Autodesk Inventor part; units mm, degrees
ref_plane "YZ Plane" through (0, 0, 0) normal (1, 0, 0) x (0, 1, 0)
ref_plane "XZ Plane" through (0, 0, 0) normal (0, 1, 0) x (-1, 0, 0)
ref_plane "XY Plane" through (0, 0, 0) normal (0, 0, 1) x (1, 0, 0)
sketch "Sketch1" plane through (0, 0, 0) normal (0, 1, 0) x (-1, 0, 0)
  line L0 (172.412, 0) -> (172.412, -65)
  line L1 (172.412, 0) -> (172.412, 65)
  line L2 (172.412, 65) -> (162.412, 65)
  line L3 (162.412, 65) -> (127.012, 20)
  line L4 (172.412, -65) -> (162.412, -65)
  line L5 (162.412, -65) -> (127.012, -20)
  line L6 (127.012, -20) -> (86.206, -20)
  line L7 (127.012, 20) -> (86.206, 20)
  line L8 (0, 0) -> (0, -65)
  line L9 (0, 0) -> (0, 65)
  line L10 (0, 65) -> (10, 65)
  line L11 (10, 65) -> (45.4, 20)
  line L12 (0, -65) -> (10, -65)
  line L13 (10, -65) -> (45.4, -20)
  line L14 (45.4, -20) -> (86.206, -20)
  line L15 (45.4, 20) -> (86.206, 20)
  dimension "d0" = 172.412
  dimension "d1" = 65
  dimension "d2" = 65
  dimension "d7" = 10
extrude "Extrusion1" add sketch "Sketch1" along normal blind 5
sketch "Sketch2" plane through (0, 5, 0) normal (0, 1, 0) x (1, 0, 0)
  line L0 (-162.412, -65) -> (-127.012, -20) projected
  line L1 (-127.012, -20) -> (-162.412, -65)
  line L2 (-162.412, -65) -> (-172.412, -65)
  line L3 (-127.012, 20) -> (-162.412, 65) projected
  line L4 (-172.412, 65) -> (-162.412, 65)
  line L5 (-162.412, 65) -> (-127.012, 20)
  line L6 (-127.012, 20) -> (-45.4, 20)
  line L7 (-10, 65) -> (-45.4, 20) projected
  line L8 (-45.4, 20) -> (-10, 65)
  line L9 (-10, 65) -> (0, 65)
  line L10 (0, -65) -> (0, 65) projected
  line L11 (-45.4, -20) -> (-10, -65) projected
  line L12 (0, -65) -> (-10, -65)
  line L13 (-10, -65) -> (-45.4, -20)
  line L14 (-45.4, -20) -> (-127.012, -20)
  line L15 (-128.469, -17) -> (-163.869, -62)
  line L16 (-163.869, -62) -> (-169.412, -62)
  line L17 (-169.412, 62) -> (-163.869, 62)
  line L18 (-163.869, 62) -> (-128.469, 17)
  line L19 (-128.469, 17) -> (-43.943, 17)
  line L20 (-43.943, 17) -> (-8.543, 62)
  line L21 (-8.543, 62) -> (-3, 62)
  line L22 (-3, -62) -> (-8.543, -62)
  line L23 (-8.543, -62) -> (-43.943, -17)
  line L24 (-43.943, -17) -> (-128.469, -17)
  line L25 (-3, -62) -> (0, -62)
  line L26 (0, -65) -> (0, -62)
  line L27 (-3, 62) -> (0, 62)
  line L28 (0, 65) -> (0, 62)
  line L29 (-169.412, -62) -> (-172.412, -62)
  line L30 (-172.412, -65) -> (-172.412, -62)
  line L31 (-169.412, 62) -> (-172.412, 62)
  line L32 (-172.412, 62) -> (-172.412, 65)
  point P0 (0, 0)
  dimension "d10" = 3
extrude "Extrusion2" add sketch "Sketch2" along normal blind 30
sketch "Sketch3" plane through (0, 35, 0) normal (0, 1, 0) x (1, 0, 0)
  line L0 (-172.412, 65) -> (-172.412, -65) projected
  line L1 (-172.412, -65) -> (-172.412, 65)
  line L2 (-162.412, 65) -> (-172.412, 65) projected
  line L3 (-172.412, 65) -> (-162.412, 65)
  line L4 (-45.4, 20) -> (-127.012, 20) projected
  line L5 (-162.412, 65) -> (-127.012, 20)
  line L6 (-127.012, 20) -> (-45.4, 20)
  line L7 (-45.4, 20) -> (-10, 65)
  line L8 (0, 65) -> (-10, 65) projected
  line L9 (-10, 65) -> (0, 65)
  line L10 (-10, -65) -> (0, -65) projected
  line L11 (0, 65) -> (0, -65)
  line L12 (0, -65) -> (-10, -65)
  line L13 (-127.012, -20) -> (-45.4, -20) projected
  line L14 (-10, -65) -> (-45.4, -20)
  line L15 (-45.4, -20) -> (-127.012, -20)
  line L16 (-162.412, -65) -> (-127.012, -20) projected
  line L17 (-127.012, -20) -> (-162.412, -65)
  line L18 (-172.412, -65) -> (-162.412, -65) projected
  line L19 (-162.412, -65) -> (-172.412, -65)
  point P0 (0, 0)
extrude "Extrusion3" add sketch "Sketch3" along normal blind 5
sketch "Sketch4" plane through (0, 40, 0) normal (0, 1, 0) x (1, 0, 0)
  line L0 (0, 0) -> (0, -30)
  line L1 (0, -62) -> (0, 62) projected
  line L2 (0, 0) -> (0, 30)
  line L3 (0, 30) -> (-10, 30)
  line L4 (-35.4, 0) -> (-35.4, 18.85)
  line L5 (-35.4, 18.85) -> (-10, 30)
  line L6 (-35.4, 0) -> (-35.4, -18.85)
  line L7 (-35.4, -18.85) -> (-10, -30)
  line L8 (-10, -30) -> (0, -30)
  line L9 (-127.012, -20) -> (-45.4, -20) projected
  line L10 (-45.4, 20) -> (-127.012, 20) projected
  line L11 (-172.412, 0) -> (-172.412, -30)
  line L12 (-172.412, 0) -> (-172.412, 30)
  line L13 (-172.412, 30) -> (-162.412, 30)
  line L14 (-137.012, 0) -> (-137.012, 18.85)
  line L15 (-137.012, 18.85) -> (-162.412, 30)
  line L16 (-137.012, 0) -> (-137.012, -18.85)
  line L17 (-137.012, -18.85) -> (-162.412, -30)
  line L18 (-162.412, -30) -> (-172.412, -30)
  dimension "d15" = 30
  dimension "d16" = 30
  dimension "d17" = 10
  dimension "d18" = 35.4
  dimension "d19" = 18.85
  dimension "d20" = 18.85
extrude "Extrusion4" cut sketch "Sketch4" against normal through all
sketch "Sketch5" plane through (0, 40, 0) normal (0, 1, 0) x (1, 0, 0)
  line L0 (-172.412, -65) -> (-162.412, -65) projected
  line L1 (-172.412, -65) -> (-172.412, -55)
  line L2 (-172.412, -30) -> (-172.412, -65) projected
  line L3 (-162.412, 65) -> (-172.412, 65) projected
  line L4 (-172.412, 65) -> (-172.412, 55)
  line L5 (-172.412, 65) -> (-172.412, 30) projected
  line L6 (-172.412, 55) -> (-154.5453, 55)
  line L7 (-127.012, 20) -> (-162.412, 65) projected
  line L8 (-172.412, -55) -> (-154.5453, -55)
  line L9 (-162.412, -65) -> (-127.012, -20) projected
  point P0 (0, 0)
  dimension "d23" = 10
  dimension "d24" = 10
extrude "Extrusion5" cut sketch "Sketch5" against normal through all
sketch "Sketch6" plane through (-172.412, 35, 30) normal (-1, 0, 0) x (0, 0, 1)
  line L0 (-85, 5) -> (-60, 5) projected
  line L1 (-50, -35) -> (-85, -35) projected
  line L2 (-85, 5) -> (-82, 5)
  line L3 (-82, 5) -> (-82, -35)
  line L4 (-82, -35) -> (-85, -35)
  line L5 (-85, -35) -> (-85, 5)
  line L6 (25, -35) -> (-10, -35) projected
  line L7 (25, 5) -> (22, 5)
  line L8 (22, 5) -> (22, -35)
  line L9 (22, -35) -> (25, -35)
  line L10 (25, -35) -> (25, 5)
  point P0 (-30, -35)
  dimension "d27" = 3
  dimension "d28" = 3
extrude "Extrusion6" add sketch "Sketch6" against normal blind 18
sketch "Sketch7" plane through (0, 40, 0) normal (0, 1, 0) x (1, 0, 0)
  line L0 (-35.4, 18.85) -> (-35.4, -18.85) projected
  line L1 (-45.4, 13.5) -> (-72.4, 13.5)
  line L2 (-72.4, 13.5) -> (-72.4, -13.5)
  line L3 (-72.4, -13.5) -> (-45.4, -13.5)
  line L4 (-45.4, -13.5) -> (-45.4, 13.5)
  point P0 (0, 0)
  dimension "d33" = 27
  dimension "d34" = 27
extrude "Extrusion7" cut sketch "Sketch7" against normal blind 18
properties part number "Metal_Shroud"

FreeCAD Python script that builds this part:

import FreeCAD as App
import Part
import Sketcher

V = App.Vector
Q = App.Units.Quantity

doc = App.newDocument("Part")
body = doc.addObject("PartDesign::Body", "Body")

# Sketch on XZ plane
sketch1 = body.newObject("Sketcher::SketchObject", "Sketch")
sketch1.AttachmentSupport = (doc.getObject("XZ_Plane"), [""])
sketch1.MapMode = "FlatFace"
sketch1.addGeometry([
    Part.LineSegment(V(-172, -65, 0), V(-172, 65, 0)),  # 0
    Part.LineSegment(V(-172, 65, 0), V(-162, 65, 0)),  # 1
    Part.LineSegment(V(-162, 65, 0), V(-127, 20, 0)),  # 2
    Part.LineSegment(V(-127, 20, 0), V(-45, 20, 0)),  # 3
    Part.LineSegment(V(-45, 20, 0), V(-10, 65, 0)),  # 4
    Part.LineSegment(V(-10, 65, 0), V(0, 65, 0)),  # 5
    Part.LineSegment(V(0, 65, 0), V(0, -65, 0)),  # 6
    Part.LineSegment(V(0, -65, 0), V(-10, -65, 0)),  # 7
    Part.LineSegment(V(-10, -65, 0), V(-45, -20, 0)),  # 8
    Part.LineSegment(V(-45, -20, 0), V(-127, -20, 0)),  # 9
    Part.LineSegment(V(-127, -20, 0), V(-162, -65, 0)),  # 10
    Part.LineSegment(V(-162, -65, 0), V(-172, -65, 0)),  # 11
], False)
sketch1.addConstraint([
    Sketcher.Constraint("Coincident", 0, 2, 1, 1),
    Sketcher.Constraint("Coincident", 1, 2, 2, 1),
    Sketcher.Constraint("Coincident", 2, 2, 3, 1),
    Sketcher.Constraint("Coincident", 3, 2, 4, 1),
    Sketcher.Constraint("Coincident", 4, 2, 5, 1),
    Sketcher.Constraint("Coincident", 5, 2, 6, 1),
    Sketcher.Constraint("Coincident", 6, 2, 7, 1),
    Sketcher.Constraint("Coincident", 7, 2, 8, 1),
    Sketcher.Constraint("Coincident", 8, 2, 9, 1),
    Sketcher.Constraint("Coincident", 9, 2, 10, 1),
    Sketcher.Constraint("Coincident", 10, 2, 11, 1),
    Sketcher.Constraint("Coincident", 11, 2, 0, 1),
    Sketcher.Constraint("Vertical", 0),
    Sketcher.Constraint("Horizontal", 1),
    Sketcher.Constraint("Horizontal", 3),
    Sketcher.Constraint("Horizontal", 5),
    Sketcher.Constraint("Vertical", 6),
    Sketcher.Constraint("Horizontal", 7),
    Sketcher.Constraint("Horizontal", 9),
    Sketcher.Constraint("Horizontal", 11),
    Sketcher.Constraint("Symmetric", 5, 2, 6, 2, -1, 1),
    Sketcher.Constraint("Symmetric", 3, 2, 8, 2, -1),
    Sketcher.Constraint("Symmetric", 1, 2, 10, 2, -1),
    Sketcher.Constraint("Parallel", 2, 8),
    Sketcher.Constraint("Parallel", 4, 10),
    Sketcher.Constraint("Horizontal", 1, 2, 4, 2),
    Sketcher.Constraint("Vertical", 4, 2, 7, 2),
    Sketcher.Constraint("Equal", 1, 5),
    Sketcher.Constraint("DistanceX", 1, 1, 1, 2, 10.0),
    Sketcher.Constraint("DistanceY", -1, 1, 0, 2, 65.0),
    Sketcher.Constraint("DistanceX", 0, 2, -1, 1, 172.412),
    Sketcher.Constraint("DistanceY", -1, 1, 2, 2, 20.0),
    Sketcher.Constraint("DistanceX", 3, 2, -1, 1, 45.4),
])
pad1 = body.newObject("PartDesign::Pad", "Pad")
pad1.Profile = sketch1
pad1.Length = 5
pad1.Reversed = True

# Sketch on XZ plane
sketch2 = body.newObject("Sketcher::SketchObject", "Sketch001")
sketch2.AttachmentSupport = (doc.getObject("XZ_Plane"), [""])
sketch2.MapMode = "FlatFace"
sketch2.AttachmentOffset = App.Placement(V(0, 0, -5), App.Rotation())
sketch2.addGeometry([
    Part.LineSegment(V(-172.4, 65, 0), V(-162.4, 65, 0)),  # 0
    Part.LineSegment(V(-162.4, 65, 0), V(-127, 20, 0)),  # 1
    Part.LineSegment(V(-127, 20, 0), V(-45.4, 20, 0)),  # 2
    Part.LineSegment(V(-45.4, 20, 0), V(-10, 65, 0)),  # 3
    Part.LineSegment(V(-10, 65, 0), V(0, 65, 0)),  # 4
    Part.LineSegment(V(0, 65, 0), V(0, 62, 0)),  # 5
    Part.LineSegment(V(0, 62, 0), V(-8.5, 62, 0)),  # 6
    Part.LineSegment(V(-8.5, 62, 0), V(-43.9, 17, 0)),  # 7
    Part.LineSegment(V(-43.9, 17, 0), V(-128.5, 17, 0)),  # 8
    Part.LineSegment(V(-128.5, 17, 0), V(-163.9, 62, 0)),  # 9
    Part.LineSegment(V(-163.9, 62, 0), V(-172.4, 62, 0)),  # 10
    Part.LineSegment(V(-172.4, 62, 0), V(-172.4, 65, 0)),  # 11
    Part.LineSegment(V(-8.5, -62, 0), V(0, -62, 0)),  # 12
    Part.LineSegment(V(0, -62, 0), V(0, -65, 0)),  # 13
    Part.LineSegment(V(0, -65, 0), V(-10, -65, 0)),  # 14
    Part.LineSegment(V(-10, -65, 0), V(-45.4, -20, 0)),  # 15
    Part.LineSegment(V(-45.4, -20, 0), V(-127, -20, 0)),  # 16
    Part.LineSegment(V(-127, -20, 0), V(-162.4, -65, 0)),  # 17
    Part.LineSegment(V(-162.4, -65, 0), V(-172.4, -65, 0)),  # 18
    Part.LineSegment(V(-172.4, -65, 0), V(-172.4, -62, 0)),  # 19
    Part.LineSegment(V(-172.4, -62, 0), V(-163.9, -62, 0)),  # 20
    Part.LineSegment(V(-163.9, -62, 0), V(-128.5, -17, 0)),  # 21
    Part.LineSegment(V(-128.5, -17, 0), V(-43.9, -17, 0)),  # 22
    Part.LineSegment(V(-43.9, -17, 0), V(-8.5, -62, 0)),  # 23
], False)
sketch2.addConstraint([
    Sketcher.Constraint("Coincident", 0, 2, 1, 1),
    Sketcher.Constraint("Coincident", 1, 2, 2, 1),
    Sketcher.Constraint("Coincident", 2, 2, 3, 1),
    Sketcher.Constraint("Coincident", 3, 2, 4, 1),
    Sketcher.Constraint("Coincident", 4, 2, 5, 1),
    Sketcher.Constraint("Coincident", 5, 2, 6, 1),
    Sketcher.Constraint("Coincident", 6, 2, 7, 1),
    Sketcher.Constraint("Coincident", 7, 2, 8, 1),
    Sketcher.Constraint("Coincident", 8, 2, 9, 1),
    Sketcher.Constraint("Coincident", 9, 2, 10, 1),
    Sketcher.Constraint("Coincident", 10, 2, 11, 1),
    Sketcher.Constraint("Coincident", 11, 2, 0, 1),
    Sketcher.Constraint("Coincident", 12, 2, 13, 1),
    Sketcher.Constraint("Coincident", 13, 2, 14, 1),
    Sketcher.Constraint("Coincident", 14, 2, 15, 1),
    Sketcher.Constraint("Coincident", 15, 2, 16, 1),
    Sketcher.Constraint("Coincident", 16, 2, 17, 1),
    Sketcher.Constraint("Coincident", 17, 2, 18, 1),
    Sketcher.Constraint("Coincident", 18, 2, 19, 1),
    Sketcher.Constraint("Coincident", 19, 2, 20, 1),
    Sketcher.Constraint("Coincident", 20, 2, 21, 1),
    Sketcher.Constraint("Coincident", 21, 2, 22, 1),
    Sketcher.Constraint("Coincident", 22, 2, 23, 1),
    Sketcher.Constraint("Coincident", 23, 2, 12, 1),
    Sketcher.Constraint("Horizontal", 0),
    Sketcher.Constraint("Horizontal", 2),
    Sketcher.Constraint("Horizontal", 4),
    Sketcher.Constraint("Vertical", 5),
    Sketcher.Constraint("Horizontal", 6),
    Sketcher.Constraint("Horizontal", 8),
    Sketcher.Constraint("Horizontal", 10),
    Sketcher.Constraint("Vertical", 11),
    Sketcher.Constraint("Horizontal", 12),
    Sketcher.Constraint("Vertical", 13),
    Sketcher.Constraint("Horizontal", 14),
    Sketcher.Constraint("Horizontal", 16),
    Sketcher.Constraint("Horizontal", 18),
    Sketcher.Constraint("Vertical", 19),
    Sketcher.Constraint("Horizontal", 20),
    Sketcher.Constraint("Horizontal", 22),
    Sketcher.Constraint("Symmetric", 5, 2, 12, 2, -1, 1),
    Sketcher.Constraint("Symmetric", 4, 2, 13, 2, -1),
    Sketcher.Constraint("Symmetric", 2, 2, 15, 2, -1),
    Sketcher.Constraint("Symmetric", 0, 2, 17, 2, -1),
    Sketcher.Constraint("Symmetric", 10, 2, 19, 2, -1),
    Sketcher.Constraint("Symmetric", 8, 2, 21, 2, -1),
    Sketcher.Constraint("Parallel", 3, 7),
    Sketcher.Constraint("Parallel", 1, 9),
    Sketcher.Constraint("Parallel", 9, 15),
    Sketcher.Constraint("Parallel", 7, 17),
    Sketcher.Constraint("Parallel", 17, 21),
    Sketcher.Constraint("Parallel", 15, 23),
    Sketcher.Constraint("Horizontal", 0, 2, 3, 2),
    Sketcher.Constraint("Horizontal", 6, 2, 9, 2),
    Sketcher.Constraint("Vertical", 3, 2, 14, 2),
    Sketcher.Constraint("Vertical", 7, 2, 22, 2),
    Sketcher.Constraint("Equal", 0, 4),
    Sketcher.Constraint("Equal", 6, 10),
    Sketcher.Constraint("Equal", 3, 7),
    Sketcher.Constraint("DistanceY", 5, 2, 5, 1, 3.0),
    Sketcher.Constraint("DistanceX", 0, 1, 0, 2, 10.0),
    Sketcher.Constraint("DistanceY", -1, 1, 0, 2, 65.0),
    Sketcher.Constraint("DistanceY", -1, 1, 1, 2, 20.0),
    Sketcher.Constraint("DistanceX", 2, 2, -1, 1, 45.4),
    Sketcher.Constraint("DistanceX", 2, 1, 2, 2, 81.612),
    Sketcher.Constraint("DistanceX", 6, 2, 6, 1, 8.543),
])
pad2 = body.newObject("PartDesign::Pad", "Pad001")
pad2.Profile = sketch2
pad2.Length = 30
pad2.Reversed = True

# Sketch on XZ plane
sketch3 = body.newObject("Sketcher::SketchObject", "Sketch002")
sketch3.AttachmentSupport = (doc.getObject("XZ_Plane"), [""])
sketch3.MapMode = "FlatFace"
sketch3.AttachmentOffset = App.Placement(V(0, 0, -35), App.Rotation())
sketch3.addGeometry([
    Part.LineSegment(V(-162, -65, 0), V(-172, -65, 0)),  # 0
    Part.LineSegment(V(-172, -65, 0), V(-172, 65, 0)),  # 1
    Part.LineSegment(V(-172, 65, 0), V(-162, 65, 0)),  # 2
    Part.LineSegment(V(-162, 65, 0), V(-127, 20, 0)),  # 3
    Part.LineSegment(V(-127, 20, 0), V(-45, 20, 0)),  # 4
    Part.LineSegment(V(-45, 20, 0), V(-10, 65, 0)),  # 5
    Part.LineSegment(V(-10, 65, 0), V(0, 65, 0)),  # 6
    Part.LineSegment(V(0, 65, 0), V(0, -65, 0)),  # 7
    Part.LineSegment(V(0, -65, 0), V(-10, -65, 0)),  # 8
    Part.LineSegment(V(-10, -65, 0), V(-45, -20, 0)),  # 9
    Part.LineSegment(V(-45, -20, 0), V(-127, -20, 0)),  # 10
    Part.LineSegment(V(-127, -20, 0), V(-162, -65, 0)),  # 11
], False)
sketch3.addConstraint([
    Sketcher.Constraint("Coincident", 0, 2, 1, 1),
    Sketcher.Constraint("Coincident", 1, 2, 2, 1),
    Sketcher.Constraint("Coincident", 2, 2, 3, 1),
    Sketcher.Constraint("Coincident", 3, 2, 4, 1),
    Sketcher.Constraint("Coincident", 4, 2, 5, 1),
    Sketcher.Constraint("Coincident", 5, 2, 6, 1),
    Sketcher.Constraint("Coincident", 6, 2, 7, 1),
    Sketcher.Constraint("Coincident", 7, 2, 8, 1),
    Sketcher.Constraint("Coincident", 8, 2, 9, 1),
    Sketcher.Constraint("Coincident", 9, 2, 10, 1),
    Sketcher.Constraint("Coincident", 10, 2, 11, 1),
    Sketcher.Constraint("Coincident", 11, 2, 0, 1),
    Sketcher.Constraint("Horizontal", 0),
    Sketcher.Constraint("Vertical", 1),
    Sketcher.Constraint("Horizontal", 2),
    Sketcher.Constraint("Horizontal", 4),
    Sketcher.Constraint("Horizontal", 6),
    Sketcher.Constraint("Vertical", 7),
    Sketcher.Constraint("Horizontal", 8),
    Sketcher.Constraint("Horizontal", 10),
    Sketcher.Constraint("Symmetric", 6, 2, 7, 2, -1, 1),
    Sketcher.Constraint("Symmetric", 4, 2, 9, 2, -1),
    Sketcher.Constraint("Symmetric", 2, 2, 11, 2, -1),
    Sketcher.Constraint("Parallel", 3, 9),
    Sketcher.Constraint("Parallel", 5, 11),
    Sketcher.Constraint("Horizontal", 2, 2, 5, 2),
    Sketcher.Constraint("Vertical", 5, 2, 8, 2),
    Sketcher.Constraint("Equal", 2, 6),
    Sketcher.Constraint("DistanceX", 0, 2, 0, 1, 10.0),
    Sketcher.Constraint("DistanceY", 1, 1, 1, 2, 130.0),
    Sketcher.Constraint("DistanceY", -1, 1, 3, 2, 20.0),
    Sketcher.Constraint("DistanceX", 4, 2, -1, 1, 45.4),
    Sketcher.Constraint("DistanceX", 4, 1, 4, 2, 81.612),
])
pad3 = body.newObject("PartDesign::Pad", "Pad002")
pad3.Profile = sketch3
pad3.Length = 5
pad3.Reversed = True

# Sketch on XZ plane
sketch4 = body.newObject("Sketcher::SketchObject", "Sketch003")
sketch4.AttachmentSupport = (doc.getObject("XZ_Plane"), [""])
sketch4.MapMode = "FlatFace"
sketch4.AttachmentOffset = App.Placement(V(0, 0, -40), App.Rotation())
sketch4.addGeometry([
    Part.LineSegment(V(0, 30, 0), V(0, -30, 0)),  # 0
    Part.LineSegment(V(0, -30, 0), V(-10, -30, 0)),  # 1
    Part.LineSegment(V(-10, -30, 0), V(-35, -19, 0)),  # 2
    Part.LineSegment(V(-35, -19, 0), V(-35, 19, 0)),  # 3
    Part.LineSegment(V(-35, 19, 0), V(-10, 30, 0)),  # 4
    Part.LineSegment(V(-10, 30, 0), V(0, 30, 0)),  # 5
    Part.LineSegment(V(-172, -30, 0), V(-172, 30, 0)),  # 6
    Part.LineSegment(V(-172, 30, 0), V(-162, 30, 0)),  # 7
    Part.LineSegment(V(-162, 30, 0), V(-137, 19, 0)),  # 8
    Part.LineSegment(V(-137, 19, 0), V(-137, -19, 0)),  # 9
    Part.LineSegment(V(-137, -19, 0), V(-162, -30, 0)),  # 10
    Part.LineSegment(V(-162, -30, 0), V(-172, -30, 0)),  # 11
], False)
sketch4.addConstraint([
    Sketcher.Constraint("Coincident", 0, 2, 1, 1),
    Sketcher.Constraint("Coincident", 1, 2, 2, 1),
    Sketcher.Constraint("Coincident", 2, 2, 3, 1),
    Sketcher.Constraint("Coincident", 3, 2, 4, 1),
    Sketcher.Constraint("Coincident", 4, 2, 5, 1),
    Sketcher.Constraint("Coincident", 5, 2, 0, 1),
    Sketcher.Constraint("Coincident", 6, 2, 7, 1),
    Sketcher.Constraint("Coincident", 7, 2, 8, 1),
    Sketcher.Constraint("Coincident", 8, 2, 9, 1),
    Sketcher.Constraint("Coincident", 9, 2, 10, 1),
    Sketcher.Constraint("Coincident", 10, 2, 11, 1),
    Sketcher.Constraint("Coincident", 11, 2, 6, 1),
    Sketcher.Constraint("Vertical", 0),
    Sketcher.Constraint("Horizontal", 1),
    Sketcher.Constraint("Vertical", 3),
    Sketcher.Constraint("Horizontal", 5),
    Sketcher.Constraint("Vertical", 6),
    Sketcher.Constraint("Horizontal", 7),
    Sketcher.Constraint("Vertical", 9),
    Sketcher.Constraint("Horizontal", 11),
    Sketcher.Constraint("Symmetric", 0, 2, 5, 2, -1, 1),
    Sketcher.Constraint("Symmetric", 7, 2, 10, 2, -1),
    Sketcher.Constraint("Parallel", 2, 8),
    Sketcher.Constraint("Parallel", 4, 10),
    Sketcher.Constraint("Horizontal", 5, 2, 6, 2),
    Sketcher.Constraint("Horizontal", 3, 2, 8, 2),
    Sketcher.Constraint("Horizontal", 2, 2, 9, 2),
    Sketcher.Constraint("Vertical", 1, 2, 4, 2),
    Sketcher.Constraint("Equal", 5, 7),
    Sketcher.Constraint("DistanceX", 1, 2, 1, 1, 10.0),
    Sketcher.Constraint("DistanceY", 0, 2, -1, 1, 30.0),
    Sketcher.Constraint("DistanceX", 2, 2, -1, 1, 35.4),
    Sketcher.Constraint("DistanceY", 2, 2, -1, 1, 18.85),
    Sketcher.Constraint("DistanceX", 6, 2, -1, 1, 172.412),
])
pocket1 = body.newObject("PartDesign::Pocket", "Pocket")
pocket1.Profile = sketch4
pocket1.Type = "ThroughAll"
pocket1.Reversed = True

# Sketch on XZ plane
sketch5 = body.newObject("Sketcher::SketchObject", "Sketch004")
sketch5.AttachmentSupport = (doc.getObject("XZ_Plane"), [""])
sketch5.MapMode = "FlatFace"
sketch5.AttachmentOffset = App.Placement(V(0, 0, -40), App.Rotation())
sketch5.addGeometry([
    Part.LineSegment(V(-172, 55, 0), V(-172, 65, 0)),  # 0
    Part.LineSegment(V(-172, 65, 0), V(-162, 65, 0)),  # 1
    Part.LineSegment(V(-162, 65, 0), V(-155, 55, 0)),  # 2
    Part.LineSegment(V(-155, 55, 0), V(-172, 55, 0)),  # 3
    Part.LineSegment(V(-155, -55, 0), V(-162, -65, 0)),  # 4
    Part.LineSegment(V(-162, -65, 0), V(-172, -65, 0)),  # 5
    Part.LineSegment(V(-172, -65, 0), V(-172, -55, 0)),  # 6
    Part.LineSegment(V(-172, -55, 0), V(-155, -55, 0)),  # 7
], False)
sketch5.addConstraint([
    Sketcher.Constraint("Coincident", 0, 2, 1, 1),
    Sketcher.Constraint("Coincident", 1, 2, 2, 1),
    Sketcher.Constraint("Coincident", 2, 2, 3, 1),
    Sketcher.Constraint("Coincident", 3, 2, 0, 1),
    Sketcher.Constraint("Coincident", 4, 2, 5, 1),
    Sketcher.Constraint("Coincident", 5, 2, 6, 1),
    Sketcher.Constraint("Coincident", 6, 2, 7, 1),
    Sketcher.Constraint("Coincident", 7, 2, 4, 1),
    Sketcher.Constraint("Vertical", 0),
    Sketcher.Constraint("Horizontal", 1),
    Sketcher.Constraint("Horizontal", 3),
    Sketcher.Constraint("Horizontal", 5),
    Sketcher.Constraint("Vertical", 6),
    Sketcher.Constraint("Horizontal", 7),
    Sketcher.Constraint("Symmetric", 1, 2, 4, 2, -1),
    Sketcher.Constraint("Symmetric", 3, 2, 6, 2, -1),
    Sketcher.Constraint("Vertical", 2, 2, 7, 2),
    Sketcher.Constraint("Equal", 5, 0),
    Sketcher.Constraint("DistanceX", 1, 1, 1, 2, 10.0),
    Sketcher.Constraint("DistanceY", -1, 1, 0, 2, 65.0),
    Sketcher.Constraint("Angle", 2, Q("-51.809 deg")),
    Sketcher.Constraint("DistanceX", 0, 2, -1, 1, 172.412),
])
pocket2 = body.newObject("PartDesign::Pocket", "Pocket001")
pocket2.Profile = sketch5
pocket2.Type = "ThroughAll"
pocket2.Reversed = True

# Sketch on YZ plane
sketch6 = body.newObject("Sketcher::SketchObject", "Sketch005")
sketch6.AttachmentSupport = (doc.getObject("YZ_Plane"), [""])
sketch6.MapMode = "FlatFace"
sketch6.AttachmentOffset = App.Placement(V(0, 0, -172.412), App.Rotation())
sketch6.addGeometry([
    Part.LineSegment(V(40, -52, 0), V(40, -55, 0)),  # 0
    Part.LineSegment(V(40, -55, 0), V(0, -55, 0)),  # 1
    Part.LineSegment(V(0, -55, 0), V(0, -52, 0)),  # 2
    Part.LineSegment(V(0, -52, 0), V(40, -52, 0)),  # 3
    Part.LineSegment(V(0, 52, 0), V(0, 55, 0)),  # 4
    Part.LineSegment(V(0, 55, 0), V(40, 55, 0)),  # 5
    Part.LineSegment(V(40, 55, 0), V(40, 52, 0)),  # 6
    Part.LineSegment(V(40, 52, 0), V(0, 52, 0)),  # 7
], False)
sketch6.addConstraint([
    Sketcher.Constraint("Coincident", 0, 2, 1, 1),
    Sketcher.Constraint("Coincident", 1, 2, 2, 1),
    Sketcher.Constraint("Coincident", 2, 2, 3, 1),
    Sketcher.Constraint("Coincident", 3, 2, 0, 1),
    Sketcher.Constraint("Coincident", 4, 2, 5, 1),
    Sketcher.Constraint("Coincident", 5, 2, 6, 1),
    Sketcher.Constraint("Coincident", 6, 2, 7, 1),
    Sketcher.Constraint("Coincident", 7, 2, 4, 1),
    Sketcher.Constraint("Vertical", 0),
    Sketcher.Constraint("Horizontal", 1),
    Sketcher.Constraint("Vertical", 2),
    Sketcher.Constraint("Horizontal", 3),
    Sketcher.Constraint("Vertical", 4),
    Sketcher.Constraint("Horizontal", 5),
    Sketcher.Constraint("Vertical", 6),
    Sketcher.Constraint("Horizontal", 7),
    Sketcher.Constraint("Symmetric", 1, 2, 4, 2, -1, 1),
    Sketcher.Constraint("Symmetric", 3, 2, 6, 2, -1),
    Sketcher.Constraint("PointOnObject", 1, 2, -2),
    Sketcher.Constraint("DistanceY", 0, 2, 0, 1, 3.0),
    Sketcher.Constraint("DistanceX", 1, 2, 1, 1, 40.0),
    Sketcher.Constraint("DistanceY", 0, 2, -1, 1, 55.0),
])
pad4 = body.newObject("PartDesign::Pad", "Pad003")
pad4.Profile = sketch6
pad4.Length = 18

# Sketch on XZ plane
sketch7 = body.newObject("Sketcher::SketchObject", "Sketch006")
sketch7.AttachmentSupport = (doc.getObject("XZ_Plane"), [""])
sketch7.MapMode = "FlatFace"
sketch7.AttachmentOffset = App.Placement(V(0, 0, -40), App.Rotation())
sketch7.addGeometry([
    Part.LineSegment(V(-45, 14, 0), V(-45, -14, 0)),
    Part.LineSegment(V(-45, -14, 0), V(-72, -14, 0)),
    Part.LineSegment(V(-72, -14, 0), V(-72, 14, 0)),
    Part.LineSegment(V(-72, 14, 0), V(-45, 14, 0)),
], False)
sketch7.addConstraint([
    Sketcher.Constraint("Coincident", 0, 2, 1, 1),
    Sketcher.Constraint("Coincident", 1, 2, 2, 1),
    Sketcher.Constraint("Coincident", 2, 2, 3, 1),
    Sketcher.Constraint("Coincident", 3, 2, 0, 1),
    Sketcher.Constraint("Vertical", 0),
    Sketcher.Constraint("Horizontal", 1),
    Sketcher.Constraint("Vertical", 2),
    Sketcher.Constraint("Horizontal", 3),
    Sketcher.Constraint("Equal", 3, 0),
    Sketcher.Constraint("DistanceX", 1, 2, 1, 1, 27.0),
    Sketcher.Constraint("DistanceX", 0, 2, -1, 1, 45.4),
    Sketcher.Constraint("DistanceY", 0, 2, -1, 1, 13.5),
])
pocket3 = body.newObject("PartDesign::Pocket", "Pocket002")
pocket3.Profile = sketch7
pocket3.Length = 18
pocket3.Reversed = True

doc.recompute()
